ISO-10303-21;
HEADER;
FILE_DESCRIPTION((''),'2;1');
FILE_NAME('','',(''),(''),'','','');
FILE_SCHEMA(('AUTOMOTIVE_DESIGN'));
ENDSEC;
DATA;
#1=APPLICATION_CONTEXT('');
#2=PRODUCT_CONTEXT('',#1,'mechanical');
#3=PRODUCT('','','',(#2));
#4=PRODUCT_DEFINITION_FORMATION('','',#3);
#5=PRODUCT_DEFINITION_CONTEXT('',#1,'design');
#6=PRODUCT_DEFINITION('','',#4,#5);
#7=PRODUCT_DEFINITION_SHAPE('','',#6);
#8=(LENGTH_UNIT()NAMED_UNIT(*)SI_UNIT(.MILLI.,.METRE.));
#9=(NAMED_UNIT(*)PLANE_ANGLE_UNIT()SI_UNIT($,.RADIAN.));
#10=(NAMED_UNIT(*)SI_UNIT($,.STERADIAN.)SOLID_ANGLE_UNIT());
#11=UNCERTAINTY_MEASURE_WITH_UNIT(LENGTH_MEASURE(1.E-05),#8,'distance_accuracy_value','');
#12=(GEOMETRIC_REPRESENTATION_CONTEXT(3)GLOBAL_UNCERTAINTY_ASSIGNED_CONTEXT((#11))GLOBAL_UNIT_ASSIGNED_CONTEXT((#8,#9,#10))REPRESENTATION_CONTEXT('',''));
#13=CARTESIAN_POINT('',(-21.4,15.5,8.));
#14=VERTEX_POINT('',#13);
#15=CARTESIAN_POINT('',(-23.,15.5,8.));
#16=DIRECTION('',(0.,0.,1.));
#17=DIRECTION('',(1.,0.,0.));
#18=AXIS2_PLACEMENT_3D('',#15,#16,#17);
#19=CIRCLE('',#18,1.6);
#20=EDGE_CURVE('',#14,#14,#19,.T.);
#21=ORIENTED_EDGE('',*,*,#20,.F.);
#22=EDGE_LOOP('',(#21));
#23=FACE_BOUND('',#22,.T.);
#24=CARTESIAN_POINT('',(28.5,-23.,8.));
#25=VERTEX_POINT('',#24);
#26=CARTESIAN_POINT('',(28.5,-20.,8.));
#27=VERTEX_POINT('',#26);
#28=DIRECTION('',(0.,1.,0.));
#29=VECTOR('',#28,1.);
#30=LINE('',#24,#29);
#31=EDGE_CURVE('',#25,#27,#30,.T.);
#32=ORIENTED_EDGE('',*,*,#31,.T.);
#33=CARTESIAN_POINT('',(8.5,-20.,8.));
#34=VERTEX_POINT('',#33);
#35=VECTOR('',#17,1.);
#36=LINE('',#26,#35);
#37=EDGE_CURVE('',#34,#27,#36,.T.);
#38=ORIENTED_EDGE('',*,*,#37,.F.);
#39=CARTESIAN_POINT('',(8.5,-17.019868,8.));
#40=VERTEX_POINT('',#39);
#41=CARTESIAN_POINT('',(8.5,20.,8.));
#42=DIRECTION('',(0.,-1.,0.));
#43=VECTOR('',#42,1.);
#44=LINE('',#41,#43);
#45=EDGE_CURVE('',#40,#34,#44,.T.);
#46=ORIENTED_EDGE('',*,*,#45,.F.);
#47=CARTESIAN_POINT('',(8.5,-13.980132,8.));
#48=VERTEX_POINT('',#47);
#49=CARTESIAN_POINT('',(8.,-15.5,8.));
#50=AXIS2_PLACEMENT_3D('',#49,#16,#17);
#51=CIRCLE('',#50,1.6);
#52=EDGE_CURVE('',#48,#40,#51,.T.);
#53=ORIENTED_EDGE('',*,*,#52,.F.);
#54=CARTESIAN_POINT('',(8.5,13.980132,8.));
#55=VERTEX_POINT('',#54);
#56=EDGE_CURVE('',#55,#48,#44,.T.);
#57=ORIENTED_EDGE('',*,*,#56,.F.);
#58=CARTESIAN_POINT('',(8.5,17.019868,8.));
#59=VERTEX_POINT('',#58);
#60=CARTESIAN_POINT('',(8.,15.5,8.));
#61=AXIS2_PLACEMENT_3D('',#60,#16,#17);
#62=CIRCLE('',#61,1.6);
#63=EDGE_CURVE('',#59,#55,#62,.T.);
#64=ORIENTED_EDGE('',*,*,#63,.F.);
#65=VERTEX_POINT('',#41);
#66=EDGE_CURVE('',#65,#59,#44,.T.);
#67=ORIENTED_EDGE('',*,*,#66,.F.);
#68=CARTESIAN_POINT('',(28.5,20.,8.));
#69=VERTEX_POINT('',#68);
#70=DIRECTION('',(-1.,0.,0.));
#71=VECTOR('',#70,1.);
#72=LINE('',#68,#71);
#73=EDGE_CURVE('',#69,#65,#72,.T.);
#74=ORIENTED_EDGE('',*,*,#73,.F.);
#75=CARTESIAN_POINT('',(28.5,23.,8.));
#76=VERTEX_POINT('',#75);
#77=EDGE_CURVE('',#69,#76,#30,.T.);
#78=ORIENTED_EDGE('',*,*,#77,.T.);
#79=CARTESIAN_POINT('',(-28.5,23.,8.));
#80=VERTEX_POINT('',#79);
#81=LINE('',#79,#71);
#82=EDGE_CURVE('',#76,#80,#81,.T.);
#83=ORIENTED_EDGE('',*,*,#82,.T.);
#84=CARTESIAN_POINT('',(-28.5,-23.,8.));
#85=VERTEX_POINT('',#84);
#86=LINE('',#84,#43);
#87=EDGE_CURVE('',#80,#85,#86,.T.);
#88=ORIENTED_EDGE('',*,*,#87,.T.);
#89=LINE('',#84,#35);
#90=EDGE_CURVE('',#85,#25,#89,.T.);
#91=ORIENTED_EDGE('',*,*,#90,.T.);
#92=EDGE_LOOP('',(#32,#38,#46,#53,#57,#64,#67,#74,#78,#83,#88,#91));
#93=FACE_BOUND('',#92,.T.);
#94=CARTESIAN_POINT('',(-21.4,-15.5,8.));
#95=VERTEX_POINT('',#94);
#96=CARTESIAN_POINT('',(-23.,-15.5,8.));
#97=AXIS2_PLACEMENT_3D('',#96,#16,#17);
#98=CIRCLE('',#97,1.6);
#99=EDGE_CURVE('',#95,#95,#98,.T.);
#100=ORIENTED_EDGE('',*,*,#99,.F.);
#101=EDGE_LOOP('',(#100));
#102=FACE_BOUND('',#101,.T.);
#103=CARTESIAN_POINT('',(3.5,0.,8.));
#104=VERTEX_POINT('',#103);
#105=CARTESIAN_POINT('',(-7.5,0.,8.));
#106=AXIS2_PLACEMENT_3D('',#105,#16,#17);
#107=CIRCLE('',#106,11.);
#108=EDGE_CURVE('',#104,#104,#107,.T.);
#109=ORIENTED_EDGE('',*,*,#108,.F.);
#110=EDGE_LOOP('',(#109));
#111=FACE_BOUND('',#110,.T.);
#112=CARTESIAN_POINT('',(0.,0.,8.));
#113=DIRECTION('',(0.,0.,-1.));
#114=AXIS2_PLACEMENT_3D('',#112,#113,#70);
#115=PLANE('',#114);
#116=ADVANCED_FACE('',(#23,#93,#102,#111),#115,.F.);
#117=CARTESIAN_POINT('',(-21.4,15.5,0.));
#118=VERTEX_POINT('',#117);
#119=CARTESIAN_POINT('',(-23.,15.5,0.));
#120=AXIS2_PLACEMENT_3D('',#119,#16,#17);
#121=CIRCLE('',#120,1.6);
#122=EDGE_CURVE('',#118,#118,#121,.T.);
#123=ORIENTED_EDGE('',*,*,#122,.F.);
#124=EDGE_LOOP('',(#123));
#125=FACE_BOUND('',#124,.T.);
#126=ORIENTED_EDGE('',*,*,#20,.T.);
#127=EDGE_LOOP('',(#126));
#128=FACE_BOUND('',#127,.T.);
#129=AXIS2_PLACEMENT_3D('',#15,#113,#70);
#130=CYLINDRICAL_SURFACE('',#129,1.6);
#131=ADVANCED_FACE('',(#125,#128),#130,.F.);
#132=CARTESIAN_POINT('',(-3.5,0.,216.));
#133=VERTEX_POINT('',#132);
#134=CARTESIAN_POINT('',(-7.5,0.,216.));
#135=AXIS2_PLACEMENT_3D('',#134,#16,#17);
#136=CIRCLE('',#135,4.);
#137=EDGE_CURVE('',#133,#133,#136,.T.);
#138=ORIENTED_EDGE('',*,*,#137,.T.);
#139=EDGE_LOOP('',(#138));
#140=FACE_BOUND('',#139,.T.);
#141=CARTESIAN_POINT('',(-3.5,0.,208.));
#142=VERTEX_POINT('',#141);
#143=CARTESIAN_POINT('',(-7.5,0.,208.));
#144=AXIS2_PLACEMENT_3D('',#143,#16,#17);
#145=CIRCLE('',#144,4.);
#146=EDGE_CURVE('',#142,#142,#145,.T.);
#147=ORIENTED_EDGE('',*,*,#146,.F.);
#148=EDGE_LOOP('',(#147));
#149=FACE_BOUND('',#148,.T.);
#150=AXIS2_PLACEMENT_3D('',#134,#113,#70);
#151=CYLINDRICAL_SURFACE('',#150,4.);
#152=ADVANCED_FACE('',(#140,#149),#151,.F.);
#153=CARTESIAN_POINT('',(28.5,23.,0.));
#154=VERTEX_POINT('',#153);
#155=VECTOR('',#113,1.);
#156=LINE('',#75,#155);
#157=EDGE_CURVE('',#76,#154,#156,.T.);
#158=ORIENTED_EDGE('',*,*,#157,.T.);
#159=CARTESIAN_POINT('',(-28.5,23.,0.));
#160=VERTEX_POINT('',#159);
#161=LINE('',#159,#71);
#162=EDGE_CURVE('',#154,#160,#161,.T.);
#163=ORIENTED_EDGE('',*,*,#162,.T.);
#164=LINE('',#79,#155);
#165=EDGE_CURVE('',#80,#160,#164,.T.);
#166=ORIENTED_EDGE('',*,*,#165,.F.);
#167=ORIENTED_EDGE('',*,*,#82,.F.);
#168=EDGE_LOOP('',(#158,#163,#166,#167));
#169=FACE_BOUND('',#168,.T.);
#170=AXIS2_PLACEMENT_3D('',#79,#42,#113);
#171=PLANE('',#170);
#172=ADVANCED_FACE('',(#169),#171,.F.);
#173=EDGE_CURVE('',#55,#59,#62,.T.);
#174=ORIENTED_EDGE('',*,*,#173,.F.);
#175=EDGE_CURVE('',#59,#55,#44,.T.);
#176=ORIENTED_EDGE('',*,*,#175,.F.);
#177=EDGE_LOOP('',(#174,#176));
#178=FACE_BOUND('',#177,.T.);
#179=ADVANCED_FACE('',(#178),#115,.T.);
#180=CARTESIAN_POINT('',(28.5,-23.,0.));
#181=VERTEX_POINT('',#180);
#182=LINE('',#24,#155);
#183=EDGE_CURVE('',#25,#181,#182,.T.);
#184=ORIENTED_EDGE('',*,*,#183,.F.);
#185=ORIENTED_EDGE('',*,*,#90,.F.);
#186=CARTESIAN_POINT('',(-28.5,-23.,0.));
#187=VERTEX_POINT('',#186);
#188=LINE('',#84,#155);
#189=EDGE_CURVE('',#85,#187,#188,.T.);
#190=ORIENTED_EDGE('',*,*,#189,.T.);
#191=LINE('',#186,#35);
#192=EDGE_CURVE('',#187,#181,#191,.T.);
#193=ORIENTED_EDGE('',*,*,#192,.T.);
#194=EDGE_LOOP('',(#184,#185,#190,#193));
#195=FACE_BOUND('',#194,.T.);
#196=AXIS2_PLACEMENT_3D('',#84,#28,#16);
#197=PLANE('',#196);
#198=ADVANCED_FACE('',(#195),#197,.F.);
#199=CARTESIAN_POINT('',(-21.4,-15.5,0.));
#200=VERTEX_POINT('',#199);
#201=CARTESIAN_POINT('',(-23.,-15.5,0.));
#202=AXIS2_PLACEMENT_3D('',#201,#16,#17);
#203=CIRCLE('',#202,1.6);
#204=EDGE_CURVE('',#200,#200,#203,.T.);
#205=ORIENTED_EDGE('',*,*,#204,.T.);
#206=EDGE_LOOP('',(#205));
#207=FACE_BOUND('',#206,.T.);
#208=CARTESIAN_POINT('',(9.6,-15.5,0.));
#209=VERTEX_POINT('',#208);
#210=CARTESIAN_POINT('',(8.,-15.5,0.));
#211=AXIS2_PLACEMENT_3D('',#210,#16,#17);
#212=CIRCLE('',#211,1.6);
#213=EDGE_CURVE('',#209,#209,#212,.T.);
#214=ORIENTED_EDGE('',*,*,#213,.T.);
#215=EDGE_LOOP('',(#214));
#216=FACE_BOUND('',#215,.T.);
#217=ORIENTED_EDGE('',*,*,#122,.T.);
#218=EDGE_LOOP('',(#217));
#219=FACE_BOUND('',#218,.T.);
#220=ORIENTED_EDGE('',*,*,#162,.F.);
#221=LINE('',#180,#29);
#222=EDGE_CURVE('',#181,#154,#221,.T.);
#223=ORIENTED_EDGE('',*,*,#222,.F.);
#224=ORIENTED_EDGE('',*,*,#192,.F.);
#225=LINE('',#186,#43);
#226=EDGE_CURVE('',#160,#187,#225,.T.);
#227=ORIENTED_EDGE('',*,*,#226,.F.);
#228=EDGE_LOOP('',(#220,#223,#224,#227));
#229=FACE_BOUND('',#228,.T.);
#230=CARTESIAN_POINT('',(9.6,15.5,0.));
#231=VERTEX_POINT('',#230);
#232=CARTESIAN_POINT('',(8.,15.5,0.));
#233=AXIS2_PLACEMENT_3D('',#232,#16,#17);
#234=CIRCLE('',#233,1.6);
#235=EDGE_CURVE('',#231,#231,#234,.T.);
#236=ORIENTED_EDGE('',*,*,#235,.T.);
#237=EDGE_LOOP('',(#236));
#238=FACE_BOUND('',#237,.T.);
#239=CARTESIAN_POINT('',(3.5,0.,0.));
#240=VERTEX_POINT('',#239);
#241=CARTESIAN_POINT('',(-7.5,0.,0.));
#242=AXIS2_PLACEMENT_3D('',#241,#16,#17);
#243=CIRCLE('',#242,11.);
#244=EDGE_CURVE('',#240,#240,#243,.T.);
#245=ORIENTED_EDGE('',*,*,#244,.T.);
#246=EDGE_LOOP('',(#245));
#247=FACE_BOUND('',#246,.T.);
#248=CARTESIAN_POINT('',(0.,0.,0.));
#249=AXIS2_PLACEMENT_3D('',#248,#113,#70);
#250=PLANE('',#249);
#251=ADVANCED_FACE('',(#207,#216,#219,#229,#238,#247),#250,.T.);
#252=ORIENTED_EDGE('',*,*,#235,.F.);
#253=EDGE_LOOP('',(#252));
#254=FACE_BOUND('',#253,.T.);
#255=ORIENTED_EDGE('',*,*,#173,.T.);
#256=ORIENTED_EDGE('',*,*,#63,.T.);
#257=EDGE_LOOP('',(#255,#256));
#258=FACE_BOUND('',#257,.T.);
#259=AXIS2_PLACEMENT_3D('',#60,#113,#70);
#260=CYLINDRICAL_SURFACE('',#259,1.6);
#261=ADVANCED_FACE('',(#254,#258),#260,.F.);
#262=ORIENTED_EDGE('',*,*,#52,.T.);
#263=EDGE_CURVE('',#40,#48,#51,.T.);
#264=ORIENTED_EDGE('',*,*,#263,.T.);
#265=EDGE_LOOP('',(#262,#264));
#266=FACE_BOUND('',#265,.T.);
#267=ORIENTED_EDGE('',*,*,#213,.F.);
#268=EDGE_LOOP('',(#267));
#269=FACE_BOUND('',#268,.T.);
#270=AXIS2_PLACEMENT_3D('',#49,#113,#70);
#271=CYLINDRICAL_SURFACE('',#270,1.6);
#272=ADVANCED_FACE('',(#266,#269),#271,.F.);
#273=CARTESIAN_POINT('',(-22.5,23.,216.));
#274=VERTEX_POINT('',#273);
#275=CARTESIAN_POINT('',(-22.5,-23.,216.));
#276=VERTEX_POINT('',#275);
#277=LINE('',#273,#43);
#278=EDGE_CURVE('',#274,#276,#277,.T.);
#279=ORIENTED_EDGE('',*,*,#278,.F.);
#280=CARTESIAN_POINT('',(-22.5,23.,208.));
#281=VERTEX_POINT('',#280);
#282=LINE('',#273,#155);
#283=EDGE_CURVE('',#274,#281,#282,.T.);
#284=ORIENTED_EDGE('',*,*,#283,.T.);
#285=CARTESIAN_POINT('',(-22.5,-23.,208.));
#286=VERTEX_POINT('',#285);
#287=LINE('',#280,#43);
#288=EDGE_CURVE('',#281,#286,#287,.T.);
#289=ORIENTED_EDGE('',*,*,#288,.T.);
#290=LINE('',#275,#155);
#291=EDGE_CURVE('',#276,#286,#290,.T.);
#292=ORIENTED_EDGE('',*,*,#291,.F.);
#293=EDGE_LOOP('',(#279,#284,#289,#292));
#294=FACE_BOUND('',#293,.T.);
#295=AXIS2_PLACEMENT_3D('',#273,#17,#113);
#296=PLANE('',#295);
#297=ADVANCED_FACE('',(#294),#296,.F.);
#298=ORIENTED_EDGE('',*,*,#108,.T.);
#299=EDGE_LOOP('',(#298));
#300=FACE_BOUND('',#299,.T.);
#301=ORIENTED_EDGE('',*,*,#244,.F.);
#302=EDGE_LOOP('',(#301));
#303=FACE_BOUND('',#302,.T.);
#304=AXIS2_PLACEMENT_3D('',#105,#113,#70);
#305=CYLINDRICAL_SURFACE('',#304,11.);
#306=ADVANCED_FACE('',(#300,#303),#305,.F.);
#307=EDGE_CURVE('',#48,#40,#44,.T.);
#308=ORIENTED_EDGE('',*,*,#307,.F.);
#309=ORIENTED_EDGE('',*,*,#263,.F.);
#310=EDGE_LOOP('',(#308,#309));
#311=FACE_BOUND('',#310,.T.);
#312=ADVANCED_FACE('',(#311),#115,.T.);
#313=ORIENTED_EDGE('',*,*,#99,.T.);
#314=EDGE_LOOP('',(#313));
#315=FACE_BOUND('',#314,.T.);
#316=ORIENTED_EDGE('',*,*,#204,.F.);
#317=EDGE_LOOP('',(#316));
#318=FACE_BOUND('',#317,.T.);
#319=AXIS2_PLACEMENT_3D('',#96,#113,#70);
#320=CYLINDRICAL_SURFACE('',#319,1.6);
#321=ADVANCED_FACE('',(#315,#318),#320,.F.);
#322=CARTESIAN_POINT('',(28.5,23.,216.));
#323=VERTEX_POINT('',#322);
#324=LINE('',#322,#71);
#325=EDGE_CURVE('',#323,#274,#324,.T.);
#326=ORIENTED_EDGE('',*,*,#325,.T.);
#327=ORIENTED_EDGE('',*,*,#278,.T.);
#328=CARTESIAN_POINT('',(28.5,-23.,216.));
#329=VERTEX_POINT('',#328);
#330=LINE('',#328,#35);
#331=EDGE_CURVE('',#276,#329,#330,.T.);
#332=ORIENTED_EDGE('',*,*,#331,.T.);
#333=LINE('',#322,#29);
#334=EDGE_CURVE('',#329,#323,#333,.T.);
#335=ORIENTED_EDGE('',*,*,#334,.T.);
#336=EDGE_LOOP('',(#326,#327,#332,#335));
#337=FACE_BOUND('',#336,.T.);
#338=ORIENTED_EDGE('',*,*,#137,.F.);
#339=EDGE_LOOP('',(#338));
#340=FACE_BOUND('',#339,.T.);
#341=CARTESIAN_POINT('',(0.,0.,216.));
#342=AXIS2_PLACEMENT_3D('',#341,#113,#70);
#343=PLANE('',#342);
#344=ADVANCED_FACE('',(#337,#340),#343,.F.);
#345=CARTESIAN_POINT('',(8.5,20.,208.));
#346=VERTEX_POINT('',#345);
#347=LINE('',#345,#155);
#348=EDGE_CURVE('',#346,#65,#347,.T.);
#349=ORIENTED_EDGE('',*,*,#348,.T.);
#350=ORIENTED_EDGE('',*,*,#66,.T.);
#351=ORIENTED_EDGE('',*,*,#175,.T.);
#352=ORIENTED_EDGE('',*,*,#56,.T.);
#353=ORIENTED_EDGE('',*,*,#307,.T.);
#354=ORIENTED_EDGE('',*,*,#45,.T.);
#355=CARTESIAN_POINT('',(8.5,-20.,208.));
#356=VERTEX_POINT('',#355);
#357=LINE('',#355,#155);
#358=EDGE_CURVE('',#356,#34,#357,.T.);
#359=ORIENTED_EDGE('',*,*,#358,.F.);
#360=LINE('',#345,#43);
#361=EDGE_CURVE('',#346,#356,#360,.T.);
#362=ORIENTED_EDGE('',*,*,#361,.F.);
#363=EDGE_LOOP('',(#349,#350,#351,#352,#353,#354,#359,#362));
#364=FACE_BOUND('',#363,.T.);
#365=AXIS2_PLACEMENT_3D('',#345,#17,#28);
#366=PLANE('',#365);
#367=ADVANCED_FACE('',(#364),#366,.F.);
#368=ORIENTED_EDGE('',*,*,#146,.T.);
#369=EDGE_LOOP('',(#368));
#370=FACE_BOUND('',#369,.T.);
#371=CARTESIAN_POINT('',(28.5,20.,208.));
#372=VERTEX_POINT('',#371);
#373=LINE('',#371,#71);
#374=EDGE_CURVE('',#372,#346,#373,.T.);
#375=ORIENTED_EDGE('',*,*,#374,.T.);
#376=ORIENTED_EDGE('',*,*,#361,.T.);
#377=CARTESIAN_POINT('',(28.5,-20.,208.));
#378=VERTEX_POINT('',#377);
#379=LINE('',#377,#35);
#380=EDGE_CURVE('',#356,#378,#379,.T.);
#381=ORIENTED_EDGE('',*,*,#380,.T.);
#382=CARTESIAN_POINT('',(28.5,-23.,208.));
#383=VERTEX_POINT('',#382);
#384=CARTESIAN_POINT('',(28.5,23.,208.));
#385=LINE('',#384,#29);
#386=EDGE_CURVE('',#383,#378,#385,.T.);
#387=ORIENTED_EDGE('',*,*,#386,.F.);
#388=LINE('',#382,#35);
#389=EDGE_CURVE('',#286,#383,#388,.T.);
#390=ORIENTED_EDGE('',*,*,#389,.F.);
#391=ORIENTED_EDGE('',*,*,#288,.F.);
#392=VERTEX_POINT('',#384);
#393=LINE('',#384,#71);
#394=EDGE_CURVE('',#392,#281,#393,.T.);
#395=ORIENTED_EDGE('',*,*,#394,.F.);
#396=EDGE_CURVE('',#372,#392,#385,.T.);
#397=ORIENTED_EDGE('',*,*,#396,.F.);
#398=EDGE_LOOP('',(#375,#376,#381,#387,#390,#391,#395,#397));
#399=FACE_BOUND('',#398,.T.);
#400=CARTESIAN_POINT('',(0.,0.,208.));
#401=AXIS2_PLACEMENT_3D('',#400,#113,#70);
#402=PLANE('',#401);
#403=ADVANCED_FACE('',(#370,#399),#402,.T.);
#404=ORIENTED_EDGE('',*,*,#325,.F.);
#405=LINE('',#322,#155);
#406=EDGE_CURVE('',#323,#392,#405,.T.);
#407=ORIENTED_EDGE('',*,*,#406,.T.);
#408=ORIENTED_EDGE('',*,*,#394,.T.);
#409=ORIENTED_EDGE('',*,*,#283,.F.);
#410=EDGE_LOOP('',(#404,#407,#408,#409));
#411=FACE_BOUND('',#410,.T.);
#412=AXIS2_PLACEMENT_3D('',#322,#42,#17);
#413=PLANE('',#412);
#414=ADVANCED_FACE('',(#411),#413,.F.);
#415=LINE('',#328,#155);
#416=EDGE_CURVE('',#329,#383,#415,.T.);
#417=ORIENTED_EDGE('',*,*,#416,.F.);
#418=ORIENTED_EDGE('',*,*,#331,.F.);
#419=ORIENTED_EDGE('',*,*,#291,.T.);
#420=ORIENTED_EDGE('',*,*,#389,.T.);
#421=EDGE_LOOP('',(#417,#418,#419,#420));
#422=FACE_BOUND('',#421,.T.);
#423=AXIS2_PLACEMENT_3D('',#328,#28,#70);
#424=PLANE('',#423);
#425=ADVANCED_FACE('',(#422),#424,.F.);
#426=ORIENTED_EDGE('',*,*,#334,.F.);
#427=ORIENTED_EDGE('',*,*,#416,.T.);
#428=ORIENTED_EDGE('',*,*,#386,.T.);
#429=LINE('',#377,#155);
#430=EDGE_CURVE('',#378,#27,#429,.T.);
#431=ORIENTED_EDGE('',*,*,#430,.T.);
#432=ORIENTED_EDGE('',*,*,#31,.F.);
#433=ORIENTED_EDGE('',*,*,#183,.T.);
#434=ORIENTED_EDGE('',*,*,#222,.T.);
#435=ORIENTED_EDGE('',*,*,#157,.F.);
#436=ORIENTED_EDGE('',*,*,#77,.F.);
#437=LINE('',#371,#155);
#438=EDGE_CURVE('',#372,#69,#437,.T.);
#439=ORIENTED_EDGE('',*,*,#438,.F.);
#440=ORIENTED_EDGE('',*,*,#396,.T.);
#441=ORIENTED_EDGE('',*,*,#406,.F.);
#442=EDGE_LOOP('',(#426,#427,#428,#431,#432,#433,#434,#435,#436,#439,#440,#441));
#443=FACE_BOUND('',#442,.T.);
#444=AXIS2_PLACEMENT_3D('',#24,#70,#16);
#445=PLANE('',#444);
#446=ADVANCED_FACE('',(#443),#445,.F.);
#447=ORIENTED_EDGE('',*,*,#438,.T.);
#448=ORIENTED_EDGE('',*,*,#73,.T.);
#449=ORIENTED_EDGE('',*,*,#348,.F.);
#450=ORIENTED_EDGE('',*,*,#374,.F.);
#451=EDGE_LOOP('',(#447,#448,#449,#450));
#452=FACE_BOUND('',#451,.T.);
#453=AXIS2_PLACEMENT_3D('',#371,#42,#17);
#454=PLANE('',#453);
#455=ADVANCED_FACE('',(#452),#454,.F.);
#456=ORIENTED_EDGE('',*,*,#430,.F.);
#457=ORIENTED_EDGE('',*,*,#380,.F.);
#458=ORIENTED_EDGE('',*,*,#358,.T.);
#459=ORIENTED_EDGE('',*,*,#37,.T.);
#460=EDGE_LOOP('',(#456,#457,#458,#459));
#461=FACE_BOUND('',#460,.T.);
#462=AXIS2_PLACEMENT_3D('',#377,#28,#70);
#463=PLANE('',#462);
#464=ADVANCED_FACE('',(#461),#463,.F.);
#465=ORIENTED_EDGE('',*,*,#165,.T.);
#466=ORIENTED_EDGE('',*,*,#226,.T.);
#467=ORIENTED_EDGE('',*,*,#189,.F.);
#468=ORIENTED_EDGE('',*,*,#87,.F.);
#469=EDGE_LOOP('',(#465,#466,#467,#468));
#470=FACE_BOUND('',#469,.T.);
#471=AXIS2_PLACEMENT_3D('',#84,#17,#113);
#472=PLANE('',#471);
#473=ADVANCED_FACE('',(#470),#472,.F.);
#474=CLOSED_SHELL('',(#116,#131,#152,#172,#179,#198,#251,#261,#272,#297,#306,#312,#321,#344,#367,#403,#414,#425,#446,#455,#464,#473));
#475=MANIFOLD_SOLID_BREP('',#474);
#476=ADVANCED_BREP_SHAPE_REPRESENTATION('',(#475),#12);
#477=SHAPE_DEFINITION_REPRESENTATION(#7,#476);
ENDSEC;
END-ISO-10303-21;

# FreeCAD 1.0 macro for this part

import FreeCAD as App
import Part
import Sketcher

V = App.Vector
Q = App.Units.Quantity


def add_polygon(sketch, points):
    """Adds a closed chain of lines whose ends are joined by coincident constraints."""
    first, n = sketch.GeometryCount, len(points)
    for a, b in zip(points, points[1:] + points[:1]):
        sketch.addGeometry(Part.LineSegment(App.Vector(*a, 0), App.Vector(*b, 0)), False)
    for i in range(n):
        sketch.addConstraint(Sketcher.Constraint("Coincident", first + i, 2, first + (i + 1) % n, 1))

doc = App.newDocument("Part")
body = doc.addObject("PartDesign::Body", "Body")

# Sketch on XY plane
sketch1 = body.newObject("Sketcher::SketchObject", "Sketch")
sketch1.AttachmentSupport = (doc.getObject("XY_Plane"), [""])
sketch1.MapMode = "FlatFace"
add_polygon(sketch1, [(-28.5, 23), (-28.5, -23), (28.5, -23), (28.5, 23)])  # lines 0-3
sketch1.addGeometry(Part.Circle(V(-23, -15.5, 0), V(0, 0, 1), 1.6), False)  # 4
sketch1.addGeometry(Part.Circle(V(8, -15.5, 0), V(0, 0, 1), 1.6), False)  # 5
sketch1.addGeometry(Part.Circle(V(-23, 15.5, 0), V(0, 0, 1), 1.6), False)  # 6
sketch1.addGeometry(Part.Circle(V(-7.5, 0, 0), V(0, 0, 1), 11), False)  # 7
sketch1.addGeometry(Part.Circle(V(8, 15.5, 0), V(0, 0, 1), 1.6), False)  # 8
sketch1.addConstraint([
    Sketcher.Constraint("Vertical", 0),
    Sketcher.Constraint("Horizontal", 1),
    Sketcher.Constraint("Vertical", 2),
    Sketcher.Constraint("Horizontal", 3),
    Sketcher.Constraint("Equal", 4, 5),
    Sketcher.Constraint("Equal", 5, 6),
    Sketcher.Constraint("Equal", 6, 8),
    Sketcher.Constraint("Symmetric", 0, 2, 2, 2, -1, 1),
    Sketcher.Constraint("Symmetric", 4, 3, 6, 3, -1),
    Sketcher.Constraint("Symmetric", 5, 3, 8, 3, -1),
    Sketcher.Constraint("PointOnObject", 7, 3, -1),
    Sketcher.Constraint("Horizontal", 4, 3, 5, 3),
    Sketcher.Constraint("Diameter", 7, Q("22 mm")),
    Sketcher.Constraint("Diameter", 4, Q("3.2 mm")),
    Sketcher.Constraint("DistanceX", 1, 1, 1, 2, Q("57 mm")),
    Sketcher.Constraint("DistanceY", 0, 2, 0, 1, Q("46 mm")),
    Sketcher.Constraint("DistanceX", 4, 3, -1, 1, Q("23 mm")),
    Sketcher.Constraint("DistanceX", -1, 1, 5, 3, Q("8 mm")),
    Sketcher.Constraint("DistanceY", 4, 3, 6, 3, Q("31 mm")),
    Sketcher.Constraint("DistanceX", 0, 2, 7, 3, Q("21 mm")),
])
pad1 = body.newObject("PartDesign::Pad", "Pad")
pad1.Profile = sketch1
pad1.Length = 8

# Sketch on XY plane
sketch2 = body.newObject("Sketcher::SketchObject", "Sketch001")
sketch2.AttachmentSupport = (doc.getObject("XY_Plane"), [""])
sketch2.MapMode = "FlatFace"
sketch2.AttachmentOffset = App.Placement(V(0, 0, 8), App.Rotation())
add_polygon(sketch2, [(8, 20), (8, -20), (28, -20), (28, 20)])  # lines 0-3
sketch2.addConstraint([
    Sketcher.Constraint("Vertical", 0),
    Sketcher.Constraint("Horizontal", 1),
    Sketcher.Constraint("Vertical", 2),
    Sketcher.Constraint("Horizontal", 3),
    Sketcher.Constraint("DistanceX", 1, 1, 1, 2, Q("20 mm")),
    Sketcher.Constraint("DistanceY", 0, 2, 0, 1, Q("40 mm")),
    Sketcher.Constraint("DistanceY", 0, 2, -1, 1, Q("20 mm")),
    Sketcher.Constraint("DistanceX", -1, 1, 0, 2, Q("8.5 mm")),
])
pad2 = body.newObject("PartDesign::Pad", "Pad001")
pad2.Profile = sketch2
pad2.Length = 200

# Sketch on XY plane
sketch3 = body.newObject("Sketcher::SketchObject", "Sketch002")
sketch3.AttachmentSupport = (doc.getObject("XY_Plane"), [""])
sketch3.MapMode = "FlatFace"
sketch3.AttachmentOffset = App.Placement(V(0, 0, 208), App.Rotation())
add_polygon(sketch3, [(-22.5, 23), (-22.5, -23), (28.5, -23), (28.5, 23)])  # lines 0-3
sketch3.addGeometry(Part.Circle(V(-7.5, 0, 0), V(0, 0, 1), 4), False)  # 4
sketch3.addConstraint([
    Sketcher.Constraint("Vertical", 0),
    Sketcher.Constraint("Horizontal", 1),
    Sketcher.Constraint("Vertical", 2),
    Sketcher.Constraint("Horizontal", 3),
    Sketcher.Constraint("PointOnObject", 4, 3, -1),
    Sketcher.Constraint("Diameter", 4, Q("8 mm")),
    Sketcher.Constraint("DistanceX", 1, 1, 1, 2, Q("51 mm")),
    Sketcher.Constraint("DistanceY", 0, 2, 0, 1, Q("46 mm")),
    Sketcher.Constraint("DistanceY", 0, 2, -1, 1, Q("23 mm")),
    Sketcher.Constraint("DistanceX", 0, 2, 4, 3, Q("15 mm")),
    Sketcher.Constraint("DistanceX", 4, 3, -1, 1, Q("7.5 mm")),
])
pad3 = body.newObject("PartDesign::Pad", "Pad002")
pad3.Profile = sketch3
pad3.Length = 8

doc.recompute()
